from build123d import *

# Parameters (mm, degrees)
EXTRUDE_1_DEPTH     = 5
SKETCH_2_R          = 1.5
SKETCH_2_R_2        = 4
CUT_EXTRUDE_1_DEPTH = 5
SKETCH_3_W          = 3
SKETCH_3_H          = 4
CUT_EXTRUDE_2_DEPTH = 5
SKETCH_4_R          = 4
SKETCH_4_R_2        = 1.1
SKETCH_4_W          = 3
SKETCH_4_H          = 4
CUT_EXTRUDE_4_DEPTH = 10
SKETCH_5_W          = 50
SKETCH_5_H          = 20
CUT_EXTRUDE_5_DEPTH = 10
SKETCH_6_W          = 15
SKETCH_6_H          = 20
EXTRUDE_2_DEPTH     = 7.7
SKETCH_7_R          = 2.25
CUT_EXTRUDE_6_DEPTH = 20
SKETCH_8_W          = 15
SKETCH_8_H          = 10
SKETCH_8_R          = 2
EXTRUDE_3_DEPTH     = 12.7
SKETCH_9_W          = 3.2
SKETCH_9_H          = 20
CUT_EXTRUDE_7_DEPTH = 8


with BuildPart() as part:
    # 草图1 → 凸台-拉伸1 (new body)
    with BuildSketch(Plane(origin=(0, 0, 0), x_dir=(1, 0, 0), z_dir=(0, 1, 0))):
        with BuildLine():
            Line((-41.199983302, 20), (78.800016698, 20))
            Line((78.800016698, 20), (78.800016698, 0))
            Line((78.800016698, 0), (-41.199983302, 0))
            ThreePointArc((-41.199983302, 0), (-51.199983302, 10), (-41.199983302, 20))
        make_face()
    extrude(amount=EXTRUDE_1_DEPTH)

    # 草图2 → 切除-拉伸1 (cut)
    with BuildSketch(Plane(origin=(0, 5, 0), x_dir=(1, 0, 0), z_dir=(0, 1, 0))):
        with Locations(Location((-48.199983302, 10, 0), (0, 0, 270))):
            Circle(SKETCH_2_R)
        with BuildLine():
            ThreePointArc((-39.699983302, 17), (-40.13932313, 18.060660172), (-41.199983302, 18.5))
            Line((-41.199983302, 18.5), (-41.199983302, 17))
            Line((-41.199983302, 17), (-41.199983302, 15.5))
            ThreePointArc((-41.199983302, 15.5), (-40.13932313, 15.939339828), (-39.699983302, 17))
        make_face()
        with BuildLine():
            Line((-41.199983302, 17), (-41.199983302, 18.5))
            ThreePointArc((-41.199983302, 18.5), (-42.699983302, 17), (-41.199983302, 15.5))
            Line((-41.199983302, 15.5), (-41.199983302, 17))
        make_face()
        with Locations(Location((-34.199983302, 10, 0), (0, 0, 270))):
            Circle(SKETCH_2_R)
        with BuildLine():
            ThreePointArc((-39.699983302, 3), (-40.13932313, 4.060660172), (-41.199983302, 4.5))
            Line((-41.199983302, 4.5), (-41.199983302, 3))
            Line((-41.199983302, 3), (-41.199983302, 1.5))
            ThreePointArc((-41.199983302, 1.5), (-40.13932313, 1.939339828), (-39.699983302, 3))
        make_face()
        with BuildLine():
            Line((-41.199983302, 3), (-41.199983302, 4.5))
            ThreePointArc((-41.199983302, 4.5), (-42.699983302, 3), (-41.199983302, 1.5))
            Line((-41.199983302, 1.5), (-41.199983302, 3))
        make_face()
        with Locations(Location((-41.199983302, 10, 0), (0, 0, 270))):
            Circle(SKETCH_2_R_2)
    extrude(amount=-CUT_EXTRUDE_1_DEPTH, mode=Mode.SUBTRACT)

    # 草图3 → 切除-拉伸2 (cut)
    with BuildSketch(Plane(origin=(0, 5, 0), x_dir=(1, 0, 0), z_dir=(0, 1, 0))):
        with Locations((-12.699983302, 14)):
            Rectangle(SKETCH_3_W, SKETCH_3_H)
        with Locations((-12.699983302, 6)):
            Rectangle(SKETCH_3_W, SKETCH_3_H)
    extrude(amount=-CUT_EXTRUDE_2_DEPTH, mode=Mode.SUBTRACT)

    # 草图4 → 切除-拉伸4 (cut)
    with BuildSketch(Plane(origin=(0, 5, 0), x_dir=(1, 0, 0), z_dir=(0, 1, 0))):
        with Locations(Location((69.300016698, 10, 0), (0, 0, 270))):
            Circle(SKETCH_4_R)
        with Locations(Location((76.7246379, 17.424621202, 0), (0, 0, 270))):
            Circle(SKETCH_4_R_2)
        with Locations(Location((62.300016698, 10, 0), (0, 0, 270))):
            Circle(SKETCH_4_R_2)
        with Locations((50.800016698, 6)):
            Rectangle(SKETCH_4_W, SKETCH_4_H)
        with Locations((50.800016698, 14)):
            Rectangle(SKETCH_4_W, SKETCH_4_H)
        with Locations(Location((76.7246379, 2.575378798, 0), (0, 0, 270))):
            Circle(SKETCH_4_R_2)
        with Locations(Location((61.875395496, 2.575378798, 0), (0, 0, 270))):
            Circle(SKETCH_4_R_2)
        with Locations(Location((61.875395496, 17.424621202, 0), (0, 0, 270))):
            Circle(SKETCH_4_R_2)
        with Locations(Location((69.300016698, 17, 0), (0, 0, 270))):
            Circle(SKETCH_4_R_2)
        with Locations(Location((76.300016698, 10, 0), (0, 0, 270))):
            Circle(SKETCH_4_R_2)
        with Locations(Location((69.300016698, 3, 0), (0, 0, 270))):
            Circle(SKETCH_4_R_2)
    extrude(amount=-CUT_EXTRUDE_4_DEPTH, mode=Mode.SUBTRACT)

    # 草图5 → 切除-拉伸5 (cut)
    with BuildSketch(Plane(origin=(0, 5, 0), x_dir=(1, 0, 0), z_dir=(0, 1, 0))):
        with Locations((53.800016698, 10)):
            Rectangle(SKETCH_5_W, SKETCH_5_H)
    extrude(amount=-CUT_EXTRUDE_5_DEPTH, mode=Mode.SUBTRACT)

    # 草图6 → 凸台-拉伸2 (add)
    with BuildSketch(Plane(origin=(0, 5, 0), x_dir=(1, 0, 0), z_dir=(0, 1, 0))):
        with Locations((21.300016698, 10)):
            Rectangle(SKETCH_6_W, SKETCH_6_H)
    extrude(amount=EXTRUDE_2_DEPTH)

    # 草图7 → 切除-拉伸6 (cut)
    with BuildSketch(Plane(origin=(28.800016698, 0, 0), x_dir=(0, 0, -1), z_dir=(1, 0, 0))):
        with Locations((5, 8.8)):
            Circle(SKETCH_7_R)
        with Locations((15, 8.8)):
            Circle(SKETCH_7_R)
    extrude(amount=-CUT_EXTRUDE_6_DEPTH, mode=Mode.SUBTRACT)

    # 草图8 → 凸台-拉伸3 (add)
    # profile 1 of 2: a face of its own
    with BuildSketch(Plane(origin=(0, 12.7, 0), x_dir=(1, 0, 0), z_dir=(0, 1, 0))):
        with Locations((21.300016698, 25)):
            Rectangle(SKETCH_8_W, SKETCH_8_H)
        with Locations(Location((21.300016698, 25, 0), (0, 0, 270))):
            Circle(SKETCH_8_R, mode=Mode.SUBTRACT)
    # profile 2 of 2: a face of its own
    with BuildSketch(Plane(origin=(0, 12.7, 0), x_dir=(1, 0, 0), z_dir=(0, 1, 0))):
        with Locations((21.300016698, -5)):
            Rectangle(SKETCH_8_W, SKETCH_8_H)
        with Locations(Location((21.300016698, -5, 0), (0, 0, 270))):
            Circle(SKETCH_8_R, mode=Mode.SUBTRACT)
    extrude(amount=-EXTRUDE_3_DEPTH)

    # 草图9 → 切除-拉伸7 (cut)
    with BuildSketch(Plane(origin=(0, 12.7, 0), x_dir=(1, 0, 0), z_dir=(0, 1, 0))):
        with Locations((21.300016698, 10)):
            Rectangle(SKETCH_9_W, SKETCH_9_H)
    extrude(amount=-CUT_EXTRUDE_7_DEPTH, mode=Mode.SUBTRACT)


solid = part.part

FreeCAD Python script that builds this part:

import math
import FreeCAD as App
import Part
import Sketcher
from FreeCAD import Vector

doc = App.newDocument("Part")
body = doc.addObject("PartDesign::Body", "Body")

sketch1 = body.newObject("Sketcher::SketchObject", "Sketch")
sketch1.AttachmentSupport = (doc.getObject("XZ_Plane"), [""])
sketch1.MapMode = "FlatFace"
sketch1.addGeometry([
    Part.LineSegment(Vector(79, -20, 0), Vector(-41, -20, 0)),
    Part.ArcOfCircle(Part.Circle(Vector(-41, -10, 0), Vector(0, 0, 1), 10), math.radians(90), math.radians(270)),
    Part.LineSegment(Vector(-41, 0, 0), Vector(79, 0, 0)),
    Part.LineSegment(Vector(79, 0, 0), Vector(79, -20, 0)),
], False)
sketch1.addConstraint([
    Sketcher.Constraint("Tangent", 0, 2, 1, 2),
    Sketcher.Constraint("Tangent", 1, 1, 2, 1),
    Sketcher.Constraint("Coincident", 2, 2, 3, 1),
    Sketcher.Constraint("Coincident", 3, 2, 0, 1),
    Sketcher.Constraint("Horizontal", 0),
    Sketcher.Constraint("Horizontal", 2),
    Sketcher.Constraint("Vertical", 3),
    Sketcher.Constraint("PointOnObject", 1, 1, -1),
    Sketcher.Constraint("Radius", 1, 10.0),
    Sketcher.Constraint("DistanceX", 0, 2, 0, 1, 120.0),
    Sketcher.Constraint("DistanceX", 1, 3, -1, 1, 41.199983),
])
pad1 = body.newObject("PartDesign::Pad", "Pad")
pad1.Profile = sketch1
pad1.Length = 5
pad1.Reversed = True

sketch2 = body.newObject("Sketcher::SketchObject", "Sketch001")
sketch2.AttachmentSupport = (doc.getObject("XZ_Plane"), [""])
sketch2.MapMode = "FlatFace"
sketch2.AttachmentOffset = App.Placement(Vector(0, 0, -5), App.Rotation())
sketch2.addGeometry([
    Part.Circle(Vector(-48.2, -10, 0), Vector(0, 0, 1), 1.5),
    Part.ArcOfCircle(Part.Circle(Vector(-41.2, -17, 0), Vector(0, 0, 1), 1.5), math.radians(-90), math.radians(0)),
    Part.ArcOfCircle(Part.Circle(Vector(-41.2, -17, 0), Vector(0, 0, 1), 1.5), math.radians(90), math.radians(270)),
    Part.ArcOfCircle(Part.Circle(Vector(-41.2, -17, 0), Vector(0, 0, 1), 1.5), math.radians(0), math.radians(90)),
    Part.Circle(Vector(-34.2, -10, 0), Vector(0, 0, 1), 1.5),
    Part.ArcOfCircle(Part.Circle(Vector(-41.2, -3, 0), Vector(0, 0, 1), 1.5), math.radians(-90), math.radians(0)),
    Part.ArcOfCircle(Part.Circle(Vector(-41.2, -3, 0), Vector(0, 0, 1), 1.5), math.radians(90), math.radians(270)),
    Part.ArcOfCircle(Part.Circle(Vector(-41.2, -3, 0), Vector(0, 0, 1), 1.5), math.radians(0), math.radians(90)),
    Part.Circle(Vector(-41.2, -10, 0), Vector(0, 0, 1), 4),
], False)
sketch2.addConstraint([
    Sketcher.Constraint("Tangent", 1, 1, 2, 2),
    Sketcher.Constraint("Tangent", 2, 1, 3, 2),
    Sketcher.Constraint("Tangent", 3, 1, 1, 2),
    Sketcher.Constraint("Tangent", 5, 1, 6, 2),
    Sketcher.Constraint("Tangent", 6, 1, 7, 2),
    Sketcher.Constraint("Tangent", 7, 1, 5, 2),
    Sketcher.Constraint("Equal", 0, 1),
    Sketcher.Constraint("Equal", 3, 4),
    Sketcher.Constraint("Equal", 4, 5),
    Sketcher.Constraint("Horizontal", 0, 3, 4, 3),
    Sketcher.Constraint("Horizontal", 4, 3, 8, 3),
    Sketcher.Constraint("Horizontal", 2, 3, 3, 1),
    Sketcher.Constraint("Horizontal", 6, 3, 7, 1),
    Sketcher.Constraint("Vertical", 3, 3, 5, 3),
    Sketcher.Constraint("Vertical", 7, 3, 8, 3),
    Sketcher.Constraint("Vertical", 8, 3, 1, 1),
    Sketcher.Constraint("Vertical", 1, 1, 2, 1),
    Sketcher.Constraint("Vertical", 2, 1, 5, 1),
    Sketcher.Constraint("Vertical", 5, 1, 6, 1),
    Sketcher.Constraint("Diameter", 0, 3.0),
    Sketcher.Constraint("Diameter", 8, 8.0),
    Sketcher.Constraint("DistanceY", 0, 3, -1, 1, 10.0),
    Sketcher.Constraint("DistanceY", 1, 3, -1, 1, 17.0),
    Sketcher.Constraint("DistanceY", 5, 3, -1, 1, 3.0),
    Sketcher.Constraint("DistanceX", 0, 3, 1, 3, 7.0),
    Sketcher.Constraint("DistanceX", 3, 3, 4, 3, 7.0),
    Sketcher.Constraint("DistanceX", 0, 3, -1, 1, 48.199983),
])
pocket1 = body.newObject("PartDesign::Pocket", "Pocket")
pocket1.Profile = sketch2
pocket1.Length = 5
pocket1.Reversed = True

sketch3 = body.newObject("Sketcher::SketchObject", "Sketch002")
sketch3.AttachmentSupport = (doc.getObject("XZ_Plane"), [""])
sketch3.MapMode = "FlatFace"
sketch3.AttachmentOffset = App.Placement(Vector(0, 0, -5), App.Rotation())
sketch3.addGeometry([
    Part.LineSegment(Vector(-14.2, -16, 0), Vector(-14.2, -12, 0)),
    Part.LineSegment(Vector(-14.2, -12, 0), Vector(-11.2, -12, 0)),
    Part.LineSegment(Vector(-11.2, -12, 0), Vector(-11.2, -16, 0)),
    Part.LineSegment(Vector(-11.2, -16, 0), Vector(-14.2, -16, 0)),
    Part.LineSegment(Vector(-14.2, -8, 0), Vector(-14.2, -4, 0)),
    Part.LineSegment(Vector(-14.2, -4, 0), Vector(-11.2, -4, 0)),
    Part.LineSegment(Vector(-11.2, -4, 0), Vector(-11.2, -8, 0)),
    Part.LineSegment(Vector(-11.2, -8, 0), Vector(-14.2, -8, 0)),
], False)
sketch3.addConstraint([
    Sketcher.Constraint("Coincident", 0, 2, 1, 1),
    Sketcher.Constraint("Coincident", 1, 2, 2, 1),
    Sketcher.Constraint("Coincident", 2, 2, 3, 1),
    Sketcher.Constraint("Coincident", 3, 2, 0, 1),
    Sketcher.Constraint("Coincident", 4, 2, 5, 1),
    Sketcher.Constraint("Coincident", 5, 2, 6, 1),
    Sketcher.Constraint("Coincident", 6, 2, 7, 1),
    Sketcher.Constraint("Coincident", 7, 2, 4, 1),
    Sketcher.Constraint("Vertical", 0),
    Sketcher.Constraint("Horizontal", 1),
    Sketcher.Constraint("Vertical", 2),
    Sketcher.Constraint("Horizontal", 3),
    Sketcher.Constraint("Vertical", 4),
    Sketcher.Constraint("Horizontal", 5),
    Sketcher.Constraint("Vertical", 6),
    Sketcher.Constraint("Horizontal", 7),
    Sketcher.Constraint("Vertical", 3, 2, 4, 2),
    Sketcher.Constraint("Vertical", 2, 2, 5, 2),
    Sketcher.Constraint("Equal", 2, 4),
    Sketcher.Constraint("DistanceX", 1, 1, 1, 2, 3.0),
    Sketcher.Constraint("DistanceY", 0, 1, 0, 2, 4.0),
    Sketcher.Constraint("DistanceY", 0, 2, -1, 1, 12.0),
    Sketcher.Constraint("DistanceY", 4, 2, -1, 1, 4.0),
    Sketcher.Constraint("DistanceX", 0, 2, -1, 1, 14.199983),
])
pocket2 = body.newObject("PartDesign::Pocket", "Pocket001")
pocket2.Profile = sketch3
pocket2.Length = 5
pocket2.Reversed = True

sketch4 = body.newObject("Sketcher::SketchObject", "Sketch003")
sketch4.AttachmentSupport = (doc.getObject("XZ_Plane"), [""])
sketch4.MapMode = "FlatFace"
sketch4.AttachmentOffset = App.Placement(Vector(0, 0, -5), App.Rotation())
sketch4.addGeometry([
    Part.Circle(Vector(69.3, -10, 0), Vector(0, 0, 1), 4),
    Part.Circle(Vector(76.7, -17.4, 0), Vector(0, 0, 1), 1.1),
    Part.Circle(Vector(62.3, -10, 0), Vector(0, 0, 1), 1.1),
    Part.LineSegment(Vector(49.3, -8, 0), Vector(49.3, -4, 0)),
    Part.LineSegment(Vector(49.3, -4, 0), Vector(52.3, -4, 0)),
    Part.LineSegment(Vector(52.3, -4, 0), Vector(52.3, -8, 0)),
    Part.LineSegment(Vector(52.3, -8, 0), Vector(49.3, -8, 0)),
    Part.LineSegment(Vector(49.3, -16, 0), Vector(49.3, -12, 0)),
    Part.LineSegment(Vector(49.3, -12, 0), Vector(52.3, -12, 0)),
    Part.LineSegment(Vector(52.3, -12, 0), Vector(52.3, -16, 0)),
    Part.LineSegment(Vector(52.3, -16, 0), Vector(49.3, -16, 0)),
    Part.Circle(Vector(76.7, -2.6, 0), Vector(0, 0, 1), 1.1),
    Part.Circle(Vector(61.9, -2.6, 0), Vector(0, 0, 1), 1.1),
    Part.Circle(Vector(61.9, -17.4, 0), Vector(0, 0, 1), 1.1),
    Part.Circle(Vector(69.3, -17, 0), Vector(0, 0, 1), 1.1),
    Part.Circle(Vector(76.3, -10, 0), Vector(0, 0, 1), 1.1),
    Part.Circle(Vector(69.3, -3, 0), Vector(0, 0, 1), 1.1),
], False)
sketch4.addConstraint([
    Sketcher.Constraint("Coincident", 3, 2, 4, 1),
    Sketcher.Constraint("Coincident", 4, 2, 5, 1),
    Sketcher.Constraint("Coincident", 5, 2, 6, 1),
    Sketcher.Constraint("Coincident", 6, 2, 3, 1),
    Sketcher.Constraint("Coincident", 7, 2, 8, 1),
    Sketcher.Constraint("Coincident", 8, 2, 9, 1),
    Sketcher.Constraint("Coincident", 9, 2, 10, 1),
    Sketcher.Constraint("Coincident", 10, 2, 7, 1),
    Sketcher.Constraint("Vertical", 3),
    Sketcher.Constraint("Horizontal", 4),
    Sketcher.Constraint("Vertical", 5),
    Sketcher.Constraint("Horizontal", 6),
    Sketcher.Constraint("Vertical", 7),
    Sketcher.Constraint("Horizontal", 8),
    Sketcher.Constraint("Vertical", 9),
    Sketcher.Constraint("Horizontal", 10),
    Sketcher.Constraint("Equal", 1, 2),
    Sketcher.Constraint("Equal", 2, 11),
    Sketcher.Constraint("Equal", 11, 12),
    Sketcher.Constraint("Equal", 12, 13),
    Sketcher.Constraint("Equal", 13, 14),
    Sketcher.Constraint("Equal", 14, 15),
    Sketcher.Constraint("Equal", 15, 16),
    Sketcher.Constraint("Horizontal", 0, 3, 2, 3),
    Sketcher.Constraint("Horizontal", 11, 3, 12, 3),
    Sketcher.Constraint("Horizontal", 1, 3, 13, 3),
    Sketcher.Constraint("Horizontal", 2, 3, 15, 3),
    Sketcher.Constraint("Vertical", 1, 3, 11, 3),
    Sketcher.Constraint("Vertical", 12, 3, 13, 3),
    Sketcher.Constraint("Vertical", 0, 3, 14, 3),
    Sketcher.Constraint("Vertical", 14, 3, 16, 3),
    Sketcher.Constraint("Vertical", 6, 2, 7, 2),
    Sketcher.Constraint("Vertical", 5, 2, 8, 2),
    Sketcher.Constraint("Equal", 5, 7),
    Sketcher.Constraint("Diameter", 0, 8.0),
    Sketcher.Constraint("Diameter", 1, 2.2),
    Sketcher.Constraint("DistanceX", 4, 1, 4, 2, 3.0),
    Sketcher.Constraint("DistanceY", 3, 1, 3, 2, 4.0),
    Sketcher.Constraint("DistanceY", 0, 3, -1, 1, 10.0),
    Sketcher.Constraint("DistanceY", 14, 3, -1, 1, 17.0),
    Sketcher.Constraint("DistanceY", 16, 3, -1, 1, 3.0),
    Sketcher.Constraint("DistanceY", 3, 2, -1, 1, 4.0),
    Sketcher.Constraint("DistanceY", 7, 2, -1, 1, 12.0),
    Sketcher.Constraint("DistanceX", 2, 3, 0, 3, 7.0),
    Sketcher.Constraint("DistanceX", 0, 3, 15, 3, 7.0),
    Sketcher.Constraint("DistanceX", 3, 2, 2, 3, 13.0),
    Sketcher.Constraint("DistanceY", 1, 3, -1, 1, 17.424621),
    Sketcher.Constraint("DistanceY", 11, 3, -1, 1, 2.575379),
    Sketcher.Constraint("DistanceX", 0, 3, 1, 3, 7.424621),
    Sketcher.Constraint("DistanceX", 12, 3, 2, 3, 0.424621),
    Sketcher.Constraint("DistanceX", -1, 1, 0, 3, 69.300017),
])
pocket3 = body.newObject("PartDesign::Pocket", "Pocket002")
pocket3.Profile = sketch4
pocket3.Length = 10
pocket3.Reversed = True

sketch5 = body.newObject("Sketcher::SketchObject", "Sketch004")
sketch5.AttachmentSupport = (doc.getObject("XZ_Plane"), [""])
sketch5.MapMode = "FlatFace"
sketch5.AttachmentOffset = App.Placement(Vector(0, 0, -5), App.Rotation())
sketch5.addGeometry([
    Part.LineSegment(Vector(29, -20, 0), Vector(29, 0, 0)),
    Part.LineSegment(Vector(29, 0, 0), Vector(79, 0, 0)),
    Part.LineSegment(Vector(79, 0, 0), Vector(79, -20, 0)),
    Part.LineSegment(Vector(79, -20, 0), Vector(29, -20, 0)),
], False)
sketch5.addConstraint([
    Sketcher.Constraint("Coincident", 0, 2, 1, 1),
    Sketcher.Constraint("Coincident", 1, 2, 2, 1),
    Sketcher.Constraint("Coincident", 2, 2, 3, 1),
    Sketcher.Constraint("Coincident", 3, 2, 0, 1),
    Sketcher.Constraint("Vertical", 0),
    Sketcher.Constraint("Horizontal", 1),
    Sketcher.Constraint("Vertical", 2),
    Sketcher.Constraint("Horizontal", 3),
    Sketcher.Constraint("PointOnObject", 0, 2, -1),
    Sketcher.Constraint("DistanceX", 1, 1, 1, 2, 50.0),
    Sketcher.Constraint("DistanceY", 0, 1, 0, 2, 20.0),
    Sketcher.Constraint("DistanceX", -1, 1, 0, 2, 28.800017),
])
pocket4 = body.newObject("PartDesign::Pocket", "Pocket003")
pocket4.Profile = sketch5
pocket4.Length = 10
pocket4.Reversed = True

sketch6 = body.newObject("Sketcher::SketchObject", "Sketch005")
sketch6.AttachmentSupport = (doc.getObject("XZ_Plane"), [""])
sketch6.MapMode = "FlatFace"
sketch6.AttachmentOffset = App.Placement(Vector(0, 0, -5), App.Rotation())
sketch6.addGeometry([
    Part.LineSegment(Vector(14, -20, 0), Vector(14, 0, 0)),
    Part.LineSegment(Vector(14, 0, 0), Vector(29, 0, 0)),
    Part.LineSegment(Vector(29, 0, 0), Vector(29, -20, 0)),
    Part.LineSegment(Vector(29, -20, 0), Vector(14, -20, 0)),
], False)
sketch6.addConstraint([
    Sketcher.Constraint("Coincident", 0, 2, 1, 1),
    Sketcher.Constraint("Coincident", 1, 2, 2, 1),
    Sketcher.Constraint("Coincident", 2, 2, 3, 1),
    Sketcher.Constraint("Coincident", 3, 2, 0, 1),
    Sketcher.Constraint("Vertical", 0),
    Sketcher.Constraint("Horizontal", 1),
    Sketcher.Constraint("Vertical", 2),
    Sketcher.Constraint("Horizontal", 3),
    Sketcher.Constraint("PointOnObject", 0, 2, -1),
    Sketcher.Constraint("DistanceX", 1, 1, 1, 2, 15.0),
    Sketcher.Constraint("DistanceY", 0, 1, 0, 2, 20.0),
    Sketcher.Constraint("DistanceX", -1, 1, 0, 2, 13.800017),
])
pad2 = body.newObject("PartDesign::Pad", "Pad001")
pad2.Profile = sketch6
pad2.Length = 7.7
pad2.Reversed = True

sketch7 = body.newObject("Sketcher::SketchObject", "Sketch006")
sketch7.AttachmentSupport = (doc.getObject("YZ_Plane"), [""])
sketch7.MapMode = "FlatFace"
sketch7.AttachmentOffset = App.Placement(Vector(0, 0, 28.800017), App.Rotation())
sketch7.addGeometry([
    Part.Circle(Vector(8.8, -5, 0), Vector(0, 0, 1), 2.2),
    Part.Circle(Vector(8.8, -15, 0), Vector(0, 0, 1), 2.2),
], False)
sketch7.addConstraint([
    Sketcher.Constraint("Equal", 0, 1),
    Sketcher.Constraint("Vertical", 0, 3, 1, 3),
    Sketcher.Constraint("Diameter", 0, 4.5),
    Sketcher.Constraint("DistanceY", 0, 3, -1, 1, 5.0),
    Sketcher.Constraint("DistanceY", 1, 3, -1, 1, 15.0),
    Sketcher.Constraint("DistanceX", -1, 1, 0, 3, 8.8),
])
pocket5 = body.newObject("PartDesign::Pocket", "Pocket004")
pocket5.Profile = sketch7
pocket5.Length = 20

sketch8 = body.newObject("Sketcher::SketchObject", "Sketch007")
sketch8.AttachmentSupport = (doc.getObject("XZ_Plane"), [""])
sketch8.MapMode = "FlatFace"
sketch8.AttachmentOffset = App.Placement(Vector(0, 0, -12.7), App.Rotation())
sketch8.addGeometry([
    Part.LineSegment(Vector(13.8, -30, 0), Vector(13.8, -20, 0)),
    Part.LineSegment(Vector(13.8, -20, 0), Vector(28.8, -20, 0)),
    Part.LineSegment(Vector(28.8, -20, 0), Vector(28.8, -30, 0)),
    Part.LineSegment(Vector(28.8, -30, 0), Vector(13.8, -30, 0)),
    Part.Circle(Vector(21.3, -25, 0), Vector(0, 0, 1), 2),
    Part.LineSegment(Vector(13.8, 0, 0), Vector(13.8, 10, 0)),
    Part.LineSegment(Vector(13.8, 10, 0), Vector(28.8, 10, 0)),
    Part.LineSegment(Vector(28.8, 10, 0), Vector(28.8, 0, 0)),
    Part.LineSegment(Vector(28.8, 0, 0), Vector(13.8, 0, 0)),
    Part.Circle(Vector(21.3, 5, 0), Vector(0, 0, 1), 2),
], False)
sketch8.addConstraint([
    Sketcher.Constraint("Coincident", 0, 2, 1, 1),
    Sketcher.Constraint("Coincident", 1, 2, 2, 1),
    Sketcher.Constraint("Coincident", 2, 2, 3, 1),
    Sketcher.Constraint("Coincident", 3, 2, 0, 1),
    Sketcher.Constraint("Coincident", 5, 2, 6, 1),
    Sketcher.Constraint("Coincident", 6, 2, 7, 1),
    Sketcher.Constraint("Coincident", 7, 2, 8, 1),
    Sketcher.Constraint("Coincident", 8, 2, 5, 1),
    Sketcher.Constraint("Vertical", 0),
    Sketcher.Constraint("Horizontal", 1),
    Sketcher.Constraint("Vertical", 2),
    Sketcher.Constraint("Horizontal", 3),
    Sketcher.Constraint("Vertical", 5),
    Sketcher.Constraint("Horizontal", 6),
    Sketcher.Constraint("Vertical", 7),
    Sketcher.Constraint("Horizontal", 8),
    Sketcher.Constraint("Equal", 4, 9),
    Sketcher.Constraint("PointOnObject", 7, 2, -1),
    Sketcher.Constraint("Vertical", 4, 3, 9, 3),
    Sketcher.Constraint("Vertical", 3, 2, 5, 2),
    Sketcher.Constraint("Vertical", 2, 2, 6, 2),
    Sketcher.Constraint("Equal", 2, 5),
    Sketcher.Constraint("Diameter", 4, 4.0),
    Sketcher.Constraint("DistanceX", 1, 1, 1, 2, 15.0),
    Sketcher.Constraint("DistanceY", 0, 1, 0, 2, 10.0),
    Sketcher.Constraint("DistanceY", 4, 3, -1, 1, 25.0),
    Sketcher.Constraint("DistanceY", -1, 1, 9, 3, 5.0),
    Sketcher.Constraint("DistanceY", 0, 2, -1, 1, 20.0),
    Sketcher.Constraint("DistanceX", 0, 2, 4, 3, 7.5),
    Sketcher.Constraint("DistanceX", -1, 1, 4, 3, 21.300017),
])
pad3 = body.newObject("PartDesign::Pad", "Pad002")
pad3.Profile = sketch8
pad3.Length = 12.7

sketch9 = body.newObject("Sketcher::SketchObject", "Sketch008")
sketch9.AttachmentSupport = (doc.getObject("XZ_Plane"), [""])
sketch9.MapMode = "FlatFace"
sketch9.AttachmentOffset = App.Placement(Vector(0, 0, -12.7), App.Rotation())
sketch9.addGeometry([
    Part.LineSegment(Vector(19.7, -20, 0), Vector(19.7, 0, 0)),
    Part.LineSegment(Vector(19.7, 0, 0), Vector(22.9, 0, 0)),
    Part.LineSegment(Vector(22.9, 0, 0), Vector(22.9, -20, 0)),
    Part.LineSegment(Vector(22.9, -20, 0), Vector(19.7, -20, 0)),
], False)
sketch9.addConstraint([
    Sketcher.Constraint("Coincident", 0, 2, 1, 1),
    Sketcher.Constraint("Coincident", 1, 2, 2, 1),
    Sketcher.Constraint("Coincident", 2, 2, 3, 1),
    Sketcher.Constraint("Coincident", 3, 2, 0, 1),
    Sketcher.Constraint("Vertical", 0),
    Sketcher.Constraint("Horizontal", 1),
    Sketcher.Constraint("Vertical", 2),
    Sketcher.Constraint("Horizontal", 3),
    Sketcher.Constraint("PointOnObject", 0, 2, -1),
    Sketcher.Constraint("DistanceY", 0, 1, 0, 2, 20.0),
    Sketcher.Constraint("DistanceX", 1, 1, 1, 2, 3.2),
    Sketcher.Constraint("DistanceX", -1, 1, 0, 2, 19.700017),
])
pocket6 = body.newObject("PartDesign::Pocket", "Pocket005")
pocket6.Profile = sketch9
pocket6.Length = 8
pocket6.Reversed = True

doc.recompute()
